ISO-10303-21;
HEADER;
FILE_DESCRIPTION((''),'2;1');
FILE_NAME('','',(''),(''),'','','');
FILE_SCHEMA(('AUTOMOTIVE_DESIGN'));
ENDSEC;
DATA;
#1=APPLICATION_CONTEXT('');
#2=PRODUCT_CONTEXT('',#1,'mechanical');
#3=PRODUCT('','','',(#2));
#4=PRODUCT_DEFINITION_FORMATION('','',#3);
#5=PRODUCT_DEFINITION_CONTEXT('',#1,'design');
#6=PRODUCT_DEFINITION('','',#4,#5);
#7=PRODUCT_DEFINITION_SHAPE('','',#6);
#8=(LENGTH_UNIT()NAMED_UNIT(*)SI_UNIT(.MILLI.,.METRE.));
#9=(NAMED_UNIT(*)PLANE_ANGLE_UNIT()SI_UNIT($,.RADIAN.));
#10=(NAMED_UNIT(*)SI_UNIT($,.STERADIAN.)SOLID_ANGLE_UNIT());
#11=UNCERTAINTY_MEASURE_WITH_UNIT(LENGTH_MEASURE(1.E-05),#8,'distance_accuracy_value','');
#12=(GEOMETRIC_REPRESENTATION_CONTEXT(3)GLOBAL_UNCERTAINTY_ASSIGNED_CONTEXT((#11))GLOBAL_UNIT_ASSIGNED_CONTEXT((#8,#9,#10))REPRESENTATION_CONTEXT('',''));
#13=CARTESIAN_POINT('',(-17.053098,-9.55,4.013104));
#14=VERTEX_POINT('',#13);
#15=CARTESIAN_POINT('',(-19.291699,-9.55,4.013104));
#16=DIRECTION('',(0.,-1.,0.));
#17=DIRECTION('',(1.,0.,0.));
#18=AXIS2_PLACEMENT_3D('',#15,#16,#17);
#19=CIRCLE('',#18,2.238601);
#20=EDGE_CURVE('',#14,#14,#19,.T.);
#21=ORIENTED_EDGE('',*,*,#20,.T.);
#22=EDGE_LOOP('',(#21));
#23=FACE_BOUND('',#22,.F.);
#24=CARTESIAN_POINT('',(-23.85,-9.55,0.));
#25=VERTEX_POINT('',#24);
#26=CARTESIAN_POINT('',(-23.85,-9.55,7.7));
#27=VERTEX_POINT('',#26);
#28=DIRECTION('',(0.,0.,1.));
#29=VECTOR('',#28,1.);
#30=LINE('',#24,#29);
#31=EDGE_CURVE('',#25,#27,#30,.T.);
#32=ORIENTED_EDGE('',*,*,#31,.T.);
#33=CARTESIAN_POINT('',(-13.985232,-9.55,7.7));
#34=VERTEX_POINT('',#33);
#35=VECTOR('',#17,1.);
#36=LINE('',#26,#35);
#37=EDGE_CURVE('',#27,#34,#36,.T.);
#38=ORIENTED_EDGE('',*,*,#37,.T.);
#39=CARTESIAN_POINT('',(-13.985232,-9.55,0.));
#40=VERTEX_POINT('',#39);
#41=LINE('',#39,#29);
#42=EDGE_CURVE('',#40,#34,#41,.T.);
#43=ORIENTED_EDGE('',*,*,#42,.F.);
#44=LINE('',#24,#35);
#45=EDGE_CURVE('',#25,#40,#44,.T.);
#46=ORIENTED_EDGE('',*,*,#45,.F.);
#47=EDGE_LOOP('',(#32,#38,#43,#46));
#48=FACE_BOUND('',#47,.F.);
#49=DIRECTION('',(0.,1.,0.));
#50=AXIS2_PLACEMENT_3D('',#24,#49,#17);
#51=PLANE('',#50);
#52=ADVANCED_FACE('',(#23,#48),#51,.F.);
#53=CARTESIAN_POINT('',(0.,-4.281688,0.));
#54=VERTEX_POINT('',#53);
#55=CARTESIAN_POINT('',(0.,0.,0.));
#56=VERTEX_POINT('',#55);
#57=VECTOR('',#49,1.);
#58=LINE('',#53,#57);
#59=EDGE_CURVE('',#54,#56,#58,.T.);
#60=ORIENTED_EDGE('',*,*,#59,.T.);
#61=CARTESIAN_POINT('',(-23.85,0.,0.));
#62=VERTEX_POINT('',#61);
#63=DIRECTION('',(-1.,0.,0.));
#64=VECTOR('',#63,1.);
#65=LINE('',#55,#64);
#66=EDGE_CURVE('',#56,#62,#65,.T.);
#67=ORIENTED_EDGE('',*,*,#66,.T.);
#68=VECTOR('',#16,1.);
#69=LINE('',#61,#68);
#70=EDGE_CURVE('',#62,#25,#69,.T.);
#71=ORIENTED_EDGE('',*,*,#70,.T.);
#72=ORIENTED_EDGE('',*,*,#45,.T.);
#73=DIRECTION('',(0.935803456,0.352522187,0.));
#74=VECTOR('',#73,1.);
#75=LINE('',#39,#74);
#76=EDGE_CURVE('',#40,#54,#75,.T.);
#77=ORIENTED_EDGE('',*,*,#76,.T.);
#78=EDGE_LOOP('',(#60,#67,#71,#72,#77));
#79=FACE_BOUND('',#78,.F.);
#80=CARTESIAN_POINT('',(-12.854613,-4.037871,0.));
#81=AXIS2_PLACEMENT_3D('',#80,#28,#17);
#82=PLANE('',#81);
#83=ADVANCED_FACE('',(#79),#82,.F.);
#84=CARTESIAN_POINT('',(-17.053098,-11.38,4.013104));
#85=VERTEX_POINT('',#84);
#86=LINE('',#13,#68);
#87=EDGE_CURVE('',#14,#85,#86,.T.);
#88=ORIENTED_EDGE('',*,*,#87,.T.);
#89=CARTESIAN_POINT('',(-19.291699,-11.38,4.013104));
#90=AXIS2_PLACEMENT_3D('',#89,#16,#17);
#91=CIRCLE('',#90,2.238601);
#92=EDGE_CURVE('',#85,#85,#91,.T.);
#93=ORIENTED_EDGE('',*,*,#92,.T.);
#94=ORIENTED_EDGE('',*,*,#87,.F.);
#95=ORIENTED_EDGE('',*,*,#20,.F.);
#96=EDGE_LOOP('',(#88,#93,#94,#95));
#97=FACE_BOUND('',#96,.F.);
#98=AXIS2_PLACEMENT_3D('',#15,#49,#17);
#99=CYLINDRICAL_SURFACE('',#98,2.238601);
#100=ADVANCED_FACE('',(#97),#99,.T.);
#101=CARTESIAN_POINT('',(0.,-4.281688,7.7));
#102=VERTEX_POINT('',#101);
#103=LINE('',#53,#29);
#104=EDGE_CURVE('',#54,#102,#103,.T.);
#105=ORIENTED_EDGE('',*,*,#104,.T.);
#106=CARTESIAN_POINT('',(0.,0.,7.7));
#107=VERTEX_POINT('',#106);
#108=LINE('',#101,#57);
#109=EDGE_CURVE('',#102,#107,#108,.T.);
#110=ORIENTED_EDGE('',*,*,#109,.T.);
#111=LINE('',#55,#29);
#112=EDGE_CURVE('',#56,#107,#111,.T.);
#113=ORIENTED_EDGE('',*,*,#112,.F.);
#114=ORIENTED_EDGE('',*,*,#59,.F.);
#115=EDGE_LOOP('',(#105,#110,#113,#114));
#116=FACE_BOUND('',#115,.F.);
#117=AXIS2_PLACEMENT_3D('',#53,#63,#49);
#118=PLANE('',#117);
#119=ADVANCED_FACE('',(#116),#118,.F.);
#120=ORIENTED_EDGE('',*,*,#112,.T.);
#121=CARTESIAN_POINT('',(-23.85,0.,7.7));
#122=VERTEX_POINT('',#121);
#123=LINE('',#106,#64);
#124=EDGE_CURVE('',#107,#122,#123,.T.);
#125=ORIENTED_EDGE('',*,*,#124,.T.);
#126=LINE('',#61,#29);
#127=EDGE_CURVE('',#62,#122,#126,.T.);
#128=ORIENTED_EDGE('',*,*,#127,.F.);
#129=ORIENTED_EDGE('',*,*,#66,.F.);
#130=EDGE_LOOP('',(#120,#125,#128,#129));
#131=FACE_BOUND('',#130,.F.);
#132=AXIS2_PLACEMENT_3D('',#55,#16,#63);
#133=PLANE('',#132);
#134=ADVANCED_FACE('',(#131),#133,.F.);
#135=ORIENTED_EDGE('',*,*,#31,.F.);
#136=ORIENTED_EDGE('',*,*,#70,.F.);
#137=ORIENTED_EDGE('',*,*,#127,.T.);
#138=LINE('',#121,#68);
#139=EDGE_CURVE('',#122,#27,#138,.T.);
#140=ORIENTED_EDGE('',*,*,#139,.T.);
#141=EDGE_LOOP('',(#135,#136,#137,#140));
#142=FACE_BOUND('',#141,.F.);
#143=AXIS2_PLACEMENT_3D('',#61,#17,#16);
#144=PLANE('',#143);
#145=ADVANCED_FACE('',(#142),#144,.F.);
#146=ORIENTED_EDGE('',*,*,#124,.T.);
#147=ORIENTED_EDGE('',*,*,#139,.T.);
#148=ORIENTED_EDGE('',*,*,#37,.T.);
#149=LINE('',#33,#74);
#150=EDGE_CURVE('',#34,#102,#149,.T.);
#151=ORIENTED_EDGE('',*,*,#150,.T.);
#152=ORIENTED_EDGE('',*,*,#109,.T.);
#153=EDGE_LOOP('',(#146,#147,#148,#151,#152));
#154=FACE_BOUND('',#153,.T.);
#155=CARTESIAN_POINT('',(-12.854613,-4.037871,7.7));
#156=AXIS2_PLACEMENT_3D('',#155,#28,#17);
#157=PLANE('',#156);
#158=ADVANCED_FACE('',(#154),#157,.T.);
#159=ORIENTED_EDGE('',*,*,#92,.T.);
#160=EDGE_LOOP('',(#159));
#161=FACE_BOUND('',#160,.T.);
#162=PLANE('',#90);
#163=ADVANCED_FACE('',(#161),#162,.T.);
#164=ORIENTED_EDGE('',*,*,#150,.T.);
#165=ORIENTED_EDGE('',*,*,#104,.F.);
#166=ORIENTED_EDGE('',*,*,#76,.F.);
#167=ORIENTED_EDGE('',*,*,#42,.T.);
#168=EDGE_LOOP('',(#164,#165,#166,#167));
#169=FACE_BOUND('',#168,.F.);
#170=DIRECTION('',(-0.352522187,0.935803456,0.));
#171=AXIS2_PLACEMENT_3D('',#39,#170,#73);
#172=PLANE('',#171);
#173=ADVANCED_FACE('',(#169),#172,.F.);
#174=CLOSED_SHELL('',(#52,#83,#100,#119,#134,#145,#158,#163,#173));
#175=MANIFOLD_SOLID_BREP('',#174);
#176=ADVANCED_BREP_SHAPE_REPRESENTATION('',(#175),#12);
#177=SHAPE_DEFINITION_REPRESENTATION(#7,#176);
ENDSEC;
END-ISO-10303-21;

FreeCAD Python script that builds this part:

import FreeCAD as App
import Part
import Sketcher
from FreeCAD import Vector
Q = App.Units.Quantity

doc = App.newDocument("Part")
params = doc.addObject("Spreadsheet::Sheet", "Params")
for row, (alias, value) in enumerate([
    ("sketch1_width", "23.85 mm"),
    ("sketch1_height", "9.55 mm"),
    ("pad1_length", "7.7 mm"),
    ("pad2_length", "1.83 mm"),
], start=1):
    params.set(f"A{row}", alias)
    params.set(f"B{row}", "=" + value)
    params.setAlias(f"B{row}", alias)

body = doc.addObject("PartDesign::Body", "Body")

# Sketch on XY plane
sketch1 = doc.addObject("Sketcher::SketchObject", "Sketch")
body.addObject(sketch1)
sketch1.AttachmentSupport = (doc.XY_Plane, [""])
sketch1.MapMode = "FlatFace"
sketch1.addGeometry(Part.LineSegment(Vector(0, -4.281688, 0), Vector(0, 0, 0)), False)
sketch1.addGeometry(Part.LineSegment(Vector(0, 0, 0), Vector(-23.85, 0, 0)), False)
sketch1.addGeometry(Part.LineSegment(Vector(-23.85, 0, 0), Vector(-23.85, -9.55, 0)), False)
sketch1.addGeometry(Part.LineSegment(Vector(-23.85, -9.55, 0), Vector(-13.985232, -9.55, 0)), False)
sketch1.addGeometry(Part.LineSegment(Vector(-13.985232, -9.55, 0), Vector(0, -4.281688, 0)), False)
sketch1.addConstraint(Sketcher.Constraint("Coincident", 0, 2, 1, 1))
sketch1.addConstraint(Sketcher.Constraint("Coincident", 1, 2, 2, 1))
sketch1.addConstraint(Sketcher.Constraint("Coincident", 2, 2, 3, 1))
sketch1.addConstraint(Sketcher.Constraint("Coincident", 3, 2, 4, 1))
sketch1.addConstraint(Sketcher.Constraint("Coincident", 4, 2, 0, 1))
sketch1.addConstraint(Sketcher.Constraint("Vertical", 0))
sketch1.addConstraint(Sketcher.Constraint("Horizontal", 1))
sketch1.addConstraint(Sketcher.Constraint("Vertical", 2))
sketch1.addConstraint(Sketcher.Constraint("Horizontal", 3))
sketch1.addConstraint(Sketcher.Constraint("Coincident", 0, 2, -1, 1))
sketch1.addConstraint(Sketcher.Constraint("DistanceX", 1, 2, 1, 1, Q("23.85 mm")))
sketch1.addConstraint(Sketcher.Constraint("DistanceY", 2, 2, 2, 1, Q("9.55 mm")))
sketch1.addConstraint(Sketcher.Constraint("DistanceX", 3, 1, 3, 2, Q("9.864768 mm")))
sketch1.addConstraint(Sketcher.Constraint("DistanceY", 0, 1, 0, 2, Q("4.281688 mm")))
sketch1.setExpression("Constraints[10]", "Params.sketch1_width")
sketch1.setExpression("Constraints[11]", "Params.sketch1_height")
pad1 = doc.addObject("PartDesign::Pad", "Pad")
body.addObject(pad1)
pad1.Profile = sketch1
pad1.setExpression("Length", "Params.pad1_length")

# Sketch on XZ plane
sketch2 = doc.addObject("Sketcher::SketchObject", "Sketch001")
body.addObject(sketch2)
sketch2.AttachmentSupport = (doc.XZ_Plane, [""])
sketch2.MapMode = "FlatFace"
sketch2.AttachmentOffset = App.Placement(Vector(0, 0, 9.55), App.Rotation())
sketch2.addGeometry(Part.Circle(Vector(-19.291699, 4.013104, 0), Vector(0, 0, 1), 2.238601), False)
sketch2.addConstraint(Sketcher.Constraint("Diameter", 0, Q("4.477202 mm")))
sketch2.addConstraint(Sketcher.Constraint("DistanceX", 0, 3, -1, 1, Q("19.291699 mm")))
sketch2.addConstraint(Sketcher.Constraint("DistanceY", -1, 1, 0, 3, Q("4.013104 mm")))
pad2 = doc.addObject("PartDesign::Pad", "Pad001")
body.addObject(pad2)
pad2.Profile = sketch2
pad2.setExpression("Length", "Params.pad2_length")

doc.recompute()
